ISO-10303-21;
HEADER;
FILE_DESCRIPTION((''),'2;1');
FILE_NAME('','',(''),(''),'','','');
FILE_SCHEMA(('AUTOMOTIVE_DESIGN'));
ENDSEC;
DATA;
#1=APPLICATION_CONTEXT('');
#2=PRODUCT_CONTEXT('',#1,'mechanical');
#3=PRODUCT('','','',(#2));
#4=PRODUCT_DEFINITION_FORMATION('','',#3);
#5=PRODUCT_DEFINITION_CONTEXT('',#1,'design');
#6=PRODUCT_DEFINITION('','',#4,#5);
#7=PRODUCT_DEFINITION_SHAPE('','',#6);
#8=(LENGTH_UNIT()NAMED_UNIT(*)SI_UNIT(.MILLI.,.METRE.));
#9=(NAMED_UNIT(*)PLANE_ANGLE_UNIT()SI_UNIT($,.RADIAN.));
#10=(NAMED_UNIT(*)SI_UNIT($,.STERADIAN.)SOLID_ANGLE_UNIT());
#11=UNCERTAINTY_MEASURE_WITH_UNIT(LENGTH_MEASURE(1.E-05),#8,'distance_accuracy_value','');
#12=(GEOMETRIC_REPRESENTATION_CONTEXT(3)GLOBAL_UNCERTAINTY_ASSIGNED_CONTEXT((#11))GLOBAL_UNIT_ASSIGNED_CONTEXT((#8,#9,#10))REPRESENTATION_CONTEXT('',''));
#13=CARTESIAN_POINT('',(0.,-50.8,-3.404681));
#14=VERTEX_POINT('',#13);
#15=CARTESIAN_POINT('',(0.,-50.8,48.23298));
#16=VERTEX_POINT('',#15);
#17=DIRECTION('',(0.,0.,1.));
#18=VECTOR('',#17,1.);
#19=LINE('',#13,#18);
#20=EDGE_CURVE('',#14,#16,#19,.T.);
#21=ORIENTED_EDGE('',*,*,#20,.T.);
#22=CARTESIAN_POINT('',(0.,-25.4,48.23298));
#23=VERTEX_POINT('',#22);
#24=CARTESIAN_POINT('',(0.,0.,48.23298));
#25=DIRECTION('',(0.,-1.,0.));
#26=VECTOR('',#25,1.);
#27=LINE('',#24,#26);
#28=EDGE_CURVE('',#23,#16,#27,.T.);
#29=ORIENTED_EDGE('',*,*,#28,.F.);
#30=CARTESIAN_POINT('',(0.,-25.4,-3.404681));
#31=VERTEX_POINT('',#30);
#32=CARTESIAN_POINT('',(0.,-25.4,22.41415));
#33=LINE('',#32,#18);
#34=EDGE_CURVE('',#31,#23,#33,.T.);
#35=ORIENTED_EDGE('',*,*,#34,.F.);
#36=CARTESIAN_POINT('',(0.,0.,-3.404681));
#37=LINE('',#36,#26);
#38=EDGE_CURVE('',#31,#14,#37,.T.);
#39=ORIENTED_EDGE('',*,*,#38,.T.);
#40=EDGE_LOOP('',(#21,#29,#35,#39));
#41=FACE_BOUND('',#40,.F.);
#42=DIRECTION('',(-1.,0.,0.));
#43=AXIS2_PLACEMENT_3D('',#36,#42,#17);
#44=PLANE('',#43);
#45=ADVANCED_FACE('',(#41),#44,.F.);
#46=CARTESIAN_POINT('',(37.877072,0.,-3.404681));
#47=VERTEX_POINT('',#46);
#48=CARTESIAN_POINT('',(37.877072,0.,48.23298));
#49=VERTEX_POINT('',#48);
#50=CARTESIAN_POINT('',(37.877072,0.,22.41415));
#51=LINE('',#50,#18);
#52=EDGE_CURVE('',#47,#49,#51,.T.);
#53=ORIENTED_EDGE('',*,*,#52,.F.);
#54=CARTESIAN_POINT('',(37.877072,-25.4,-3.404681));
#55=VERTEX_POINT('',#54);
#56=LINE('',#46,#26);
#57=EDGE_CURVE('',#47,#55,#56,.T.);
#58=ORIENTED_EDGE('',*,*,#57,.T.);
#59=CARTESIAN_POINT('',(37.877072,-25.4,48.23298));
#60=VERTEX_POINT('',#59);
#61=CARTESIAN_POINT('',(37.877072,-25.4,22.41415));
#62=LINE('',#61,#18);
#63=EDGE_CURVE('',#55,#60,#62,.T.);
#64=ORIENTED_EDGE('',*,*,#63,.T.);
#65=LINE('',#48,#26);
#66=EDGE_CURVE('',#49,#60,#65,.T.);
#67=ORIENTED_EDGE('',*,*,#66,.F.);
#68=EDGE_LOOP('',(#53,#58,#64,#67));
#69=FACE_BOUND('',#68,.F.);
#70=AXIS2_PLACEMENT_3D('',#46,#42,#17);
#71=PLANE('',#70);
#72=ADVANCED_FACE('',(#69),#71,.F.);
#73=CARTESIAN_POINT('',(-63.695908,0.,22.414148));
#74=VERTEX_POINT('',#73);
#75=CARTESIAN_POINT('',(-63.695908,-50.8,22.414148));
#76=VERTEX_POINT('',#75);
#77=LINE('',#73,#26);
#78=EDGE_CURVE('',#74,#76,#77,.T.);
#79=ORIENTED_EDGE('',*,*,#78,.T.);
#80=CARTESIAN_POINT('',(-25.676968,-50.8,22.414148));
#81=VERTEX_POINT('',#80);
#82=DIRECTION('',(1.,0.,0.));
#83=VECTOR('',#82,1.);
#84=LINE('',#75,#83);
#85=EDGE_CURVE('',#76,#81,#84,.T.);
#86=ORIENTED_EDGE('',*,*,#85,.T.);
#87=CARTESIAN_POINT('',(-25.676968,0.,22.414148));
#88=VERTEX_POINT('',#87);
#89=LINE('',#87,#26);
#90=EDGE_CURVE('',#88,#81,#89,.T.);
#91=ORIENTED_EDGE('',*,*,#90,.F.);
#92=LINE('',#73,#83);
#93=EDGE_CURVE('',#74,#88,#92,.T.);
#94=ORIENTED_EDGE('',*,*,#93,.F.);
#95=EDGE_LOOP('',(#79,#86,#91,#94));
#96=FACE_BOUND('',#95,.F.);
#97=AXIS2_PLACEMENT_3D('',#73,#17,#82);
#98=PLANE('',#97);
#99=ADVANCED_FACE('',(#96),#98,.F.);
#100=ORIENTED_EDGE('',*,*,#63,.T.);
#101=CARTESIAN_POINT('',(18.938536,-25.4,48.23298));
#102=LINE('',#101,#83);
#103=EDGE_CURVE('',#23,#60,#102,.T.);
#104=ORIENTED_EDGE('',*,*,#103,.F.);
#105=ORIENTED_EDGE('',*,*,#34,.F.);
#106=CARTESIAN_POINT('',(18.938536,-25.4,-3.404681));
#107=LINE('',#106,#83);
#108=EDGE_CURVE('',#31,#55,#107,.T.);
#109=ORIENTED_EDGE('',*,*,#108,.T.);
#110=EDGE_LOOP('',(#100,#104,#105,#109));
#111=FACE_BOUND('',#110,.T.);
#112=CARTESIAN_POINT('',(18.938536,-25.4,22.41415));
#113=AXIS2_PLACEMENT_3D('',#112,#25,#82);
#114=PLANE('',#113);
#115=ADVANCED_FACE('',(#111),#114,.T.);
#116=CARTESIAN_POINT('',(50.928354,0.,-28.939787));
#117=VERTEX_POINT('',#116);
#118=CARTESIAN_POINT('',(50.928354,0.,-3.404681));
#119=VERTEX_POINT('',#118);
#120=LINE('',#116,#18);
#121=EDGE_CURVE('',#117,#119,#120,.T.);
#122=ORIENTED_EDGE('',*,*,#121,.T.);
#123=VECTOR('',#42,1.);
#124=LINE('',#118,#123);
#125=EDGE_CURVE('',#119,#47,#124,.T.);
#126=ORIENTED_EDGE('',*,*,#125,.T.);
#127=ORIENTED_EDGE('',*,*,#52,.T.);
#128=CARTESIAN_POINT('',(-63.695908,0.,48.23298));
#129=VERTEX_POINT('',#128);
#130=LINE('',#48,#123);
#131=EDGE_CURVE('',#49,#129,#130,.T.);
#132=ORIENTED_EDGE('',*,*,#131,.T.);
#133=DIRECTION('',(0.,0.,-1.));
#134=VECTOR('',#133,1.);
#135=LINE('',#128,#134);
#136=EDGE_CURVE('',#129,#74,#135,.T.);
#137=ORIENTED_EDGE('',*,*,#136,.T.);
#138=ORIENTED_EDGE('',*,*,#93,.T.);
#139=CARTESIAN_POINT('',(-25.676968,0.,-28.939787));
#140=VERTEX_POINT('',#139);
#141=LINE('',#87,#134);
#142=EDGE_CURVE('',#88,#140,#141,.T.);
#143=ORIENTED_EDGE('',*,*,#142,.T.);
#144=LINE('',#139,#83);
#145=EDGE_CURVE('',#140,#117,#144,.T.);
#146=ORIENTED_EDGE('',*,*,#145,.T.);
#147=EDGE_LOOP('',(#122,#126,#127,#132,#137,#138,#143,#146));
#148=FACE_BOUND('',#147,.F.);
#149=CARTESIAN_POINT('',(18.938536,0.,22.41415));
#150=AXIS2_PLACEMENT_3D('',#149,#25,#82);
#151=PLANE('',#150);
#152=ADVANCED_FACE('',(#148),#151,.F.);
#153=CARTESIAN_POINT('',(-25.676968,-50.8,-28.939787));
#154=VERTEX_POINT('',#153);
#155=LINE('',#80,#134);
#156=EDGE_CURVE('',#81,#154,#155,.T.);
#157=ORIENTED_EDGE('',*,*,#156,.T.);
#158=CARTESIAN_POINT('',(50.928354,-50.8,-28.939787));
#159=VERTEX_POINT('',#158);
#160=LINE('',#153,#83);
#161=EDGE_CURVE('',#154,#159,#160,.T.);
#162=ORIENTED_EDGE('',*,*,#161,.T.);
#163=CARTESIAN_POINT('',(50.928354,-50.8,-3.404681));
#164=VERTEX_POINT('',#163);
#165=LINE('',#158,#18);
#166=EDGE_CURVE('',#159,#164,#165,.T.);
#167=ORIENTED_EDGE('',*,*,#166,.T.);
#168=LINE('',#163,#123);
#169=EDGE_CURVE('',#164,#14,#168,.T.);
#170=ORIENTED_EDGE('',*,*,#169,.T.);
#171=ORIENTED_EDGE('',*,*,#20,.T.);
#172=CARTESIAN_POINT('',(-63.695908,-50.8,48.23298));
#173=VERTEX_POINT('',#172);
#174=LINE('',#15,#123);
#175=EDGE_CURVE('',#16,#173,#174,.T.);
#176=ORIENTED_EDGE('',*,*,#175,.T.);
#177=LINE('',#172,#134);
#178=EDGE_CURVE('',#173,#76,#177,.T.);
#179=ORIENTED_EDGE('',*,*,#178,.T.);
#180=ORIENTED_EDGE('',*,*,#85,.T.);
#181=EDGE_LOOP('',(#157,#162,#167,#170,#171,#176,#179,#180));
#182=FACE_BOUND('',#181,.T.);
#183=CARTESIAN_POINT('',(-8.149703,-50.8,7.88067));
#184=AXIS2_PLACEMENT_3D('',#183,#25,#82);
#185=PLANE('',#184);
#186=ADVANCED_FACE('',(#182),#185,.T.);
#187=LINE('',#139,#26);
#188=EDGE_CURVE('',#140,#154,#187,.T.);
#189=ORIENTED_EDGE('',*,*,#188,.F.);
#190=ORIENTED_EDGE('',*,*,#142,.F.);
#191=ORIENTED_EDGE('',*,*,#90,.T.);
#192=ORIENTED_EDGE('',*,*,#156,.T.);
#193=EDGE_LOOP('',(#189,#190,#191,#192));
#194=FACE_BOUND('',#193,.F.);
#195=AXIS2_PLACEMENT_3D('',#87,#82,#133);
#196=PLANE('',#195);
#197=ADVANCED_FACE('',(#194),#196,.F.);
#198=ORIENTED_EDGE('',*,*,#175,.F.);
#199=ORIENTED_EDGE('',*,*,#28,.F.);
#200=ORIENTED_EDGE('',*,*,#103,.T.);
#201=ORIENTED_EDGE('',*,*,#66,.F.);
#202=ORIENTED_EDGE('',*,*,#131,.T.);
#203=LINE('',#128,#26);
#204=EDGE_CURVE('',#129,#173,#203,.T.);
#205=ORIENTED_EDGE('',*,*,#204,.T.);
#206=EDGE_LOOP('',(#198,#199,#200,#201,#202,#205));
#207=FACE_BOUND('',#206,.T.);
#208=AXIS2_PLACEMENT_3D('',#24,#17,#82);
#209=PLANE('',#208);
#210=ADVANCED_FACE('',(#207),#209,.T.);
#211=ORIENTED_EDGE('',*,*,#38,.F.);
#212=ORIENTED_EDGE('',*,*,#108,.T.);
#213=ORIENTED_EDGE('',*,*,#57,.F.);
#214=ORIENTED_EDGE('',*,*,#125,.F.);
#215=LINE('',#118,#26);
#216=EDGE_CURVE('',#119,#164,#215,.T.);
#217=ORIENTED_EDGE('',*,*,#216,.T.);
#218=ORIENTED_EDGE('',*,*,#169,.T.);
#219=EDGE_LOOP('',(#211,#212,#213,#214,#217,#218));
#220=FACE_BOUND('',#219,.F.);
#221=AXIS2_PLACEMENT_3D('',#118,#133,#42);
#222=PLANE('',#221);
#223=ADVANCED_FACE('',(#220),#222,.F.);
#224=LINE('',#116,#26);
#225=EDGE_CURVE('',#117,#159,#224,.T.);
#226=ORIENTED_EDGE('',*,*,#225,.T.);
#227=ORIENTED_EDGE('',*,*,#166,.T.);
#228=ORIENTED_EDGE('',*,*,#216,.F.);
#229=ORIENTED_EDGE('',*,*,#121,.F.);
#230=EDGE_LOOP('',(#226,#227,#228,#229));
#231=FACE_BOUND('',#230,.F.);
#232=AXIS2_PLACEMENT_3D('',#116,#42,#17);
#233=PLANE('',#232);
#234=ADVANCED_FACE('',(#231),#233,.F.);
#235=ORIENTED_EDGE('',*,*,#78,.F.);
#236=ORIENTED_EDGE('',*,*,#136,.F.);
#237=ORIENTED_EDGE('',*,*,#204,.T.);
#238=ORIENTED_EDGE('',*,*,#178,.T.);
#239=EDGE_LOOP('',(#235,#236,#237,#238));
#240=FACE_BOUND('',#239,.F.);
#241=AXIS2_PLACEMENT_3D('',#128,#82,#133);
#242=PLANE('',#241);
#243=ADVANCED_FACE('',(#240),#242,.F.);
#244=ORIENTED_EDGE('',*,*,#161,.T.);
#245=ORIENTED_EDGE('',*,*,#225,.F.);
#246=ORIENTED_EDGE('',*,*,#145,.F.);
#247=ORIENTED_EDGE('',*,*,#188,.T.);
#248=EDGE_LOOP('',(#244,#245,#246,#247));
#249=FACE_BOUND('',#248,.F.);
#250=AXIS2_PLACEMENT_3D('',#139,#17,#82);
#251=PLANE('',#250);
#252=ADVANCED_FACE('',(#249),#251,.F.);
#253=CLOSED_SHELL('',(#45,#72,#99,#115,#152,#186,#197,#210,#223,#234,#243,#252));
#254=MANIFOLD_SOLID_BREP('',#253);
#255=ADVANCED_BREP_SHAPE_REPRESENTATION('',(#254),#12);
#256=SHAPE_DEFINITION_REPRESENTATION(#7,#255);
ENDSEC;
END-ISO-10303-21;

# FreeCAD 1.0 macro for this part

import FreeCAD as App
import Part
import Sketcher
from FreeCAD import Vector
Q = App.Units.Quantity

doc = App.newDocument("Part")
body = doc.addObject("PartDesign::Body", "Body")

# Sketch on XZ plane
sketch1 = body.newObject("Sketcher::SketchObject", "Sketch")
sketch1.AttachmentSupport = (doc.getObject("XZ_Plane"), [""])
sketch1.MapMode = "FlatFace"
sketch1.addGeometry([
    Part.LineSegment(Vector(0, 48.23298, 0), Vector(-63.695908, 48.23298, 0)),  # 0
    Part.LineSegment(Vector(-63.695908, 48.23298, 0), Vector(-63.695908, 22.414148, 0)),  # 1
    Part.LineSegment(Vector(-63.695908, 22.414148, 0), Vector(-25.676968, 22.414148, 0)),  # 2
    Part.LineSegment(Vector(-25.676968, 22.414148, 0), Vector(-25.676968, -28.939787, 0)),  # 3
    Part.LineSegment(Vector(-25.676968, -28.939787, 0), Vector(50.928354, -28.939787, 0)),  # 4
    Part.LineSegment(Vector(50.928354, -28.939787, 0), Vector(50.928354, -3.404681, 0)),  # 5
    Part.LineSegment(Vector(50.928354, -3.404681, 0), Vector(0, -3.404681, 0)),  # 6
    Part.LineSegment(Vector(0, -3.404681, 0), Vector(0, 48.23298, 0)),  # 7
], False)
sketch1.addConstraint([
    Sketcher.Constraint("Coincident", 0, 2, 1, 1),
    Sketcher.Constraint("Coincident", 1, 2, 2, 1),
    Sketcher.Constraint("Coincident", 2, 2, 3, 1),
    Sketcher.Constraint("Coincident", 3, 2, 4, 1),
    Sketcher.Constraint("Coincident", 4, 2, 5, 1),
    Sketcher.Constraint("Coincident", 5, 2, 6, 1),
    Sketcher.Constraint("Coincident", 6, 2, 7, 1),
    Sketcher.Constraint("Coincident", 7, 2, 0, 1),
    Sketcher.Constraint("Horizontal", 0),
    Sketcher.Constraint("Vertical", 1),
    Sketcher.Constraint("Horizontal", 2),
    Sketcher.Constraint("Vertical", 3),
    Sketcher.Constraint("Horizontal", 4),
    Sketcher.Constraint("Vertical", 5),
    Sketcher.Constraint("Horizontal", 6),
    Sketcher.Constraint("Vertical", 7),
    Sketcher.Constraint("PointOnObject", 6, 2, -2),
    Sketcher.Constraint("DistanceX", 2, 1, 2, 2, Q("38.01894 mm")),
    Sketcher.Constraint("DistanceX", 4, 1, 4, 2, Q("76.605322 mm")),
    Sketcher.Constraint("DistanceY", 7, 1, 7, 2, Q("51.637661 mm")),
    Sketcher.Constraint("DistanceX", 0, 2, 0, 1, Q("63.695908 mm")),
    Sketcher.Constraint("DistanceY", 1, 2, 1, 1, Q("25.818832 mm")),
    Sketcher.Constraint("DistanceY", 3, 2, 3, 1, Q("51.353935 mm")),
    Sketcher.Constraint("DistanceY", -1, 1, 0, 2, Q("48.23298 mm")),
])
pad1 = body.newObject("PartDesign::Pad", "Pad")
pad1.Profile = sketch1
pad1.Length = Q("2 in")

# Sketch on XZ plane
sketch2 = body.newObject("Sketcher::SketchObject", "Sketch001")
sketch2.AttachmentSupport = (doc.getObject("XZ_Plane"), [""])
sketch2.MapMode = "FlatFace"
sketch2.addGeometry([
    Part.LineSegment(Vector(0, 48.23298, 0), Vector(0, -3.404681, 0)),
    Part.LineSegment(Vector(0, -3.404681, 0), Vector(37.877072, -3.404681, 0)),
    Part.LineSegment(Vector(37.877072, -3.404681, 0), Vector(37.877072, 48.23298, 0)),
    Part.LineSegment(Vector(37.877072, 48.23298, 0), Vector(0, 48.23298, 0)),
], False)
sketch2.addConstraint([
    Sketcher.Constraint("Coincident", 0, 2, 1, 1),
    Sketcher.Constraint("Coincident", 1, 2, 2, 1),
    Sketcher.Constraint("Coincident", 2, 2, 3, 1),
    Sketcher.Constraint("Coincident", 3, 2, 0, 1),
    Sketcher.Constraint("Vertical", 0),
    Sketcher.Constraint("Horizontal", 1),
    Sketcher.Constraint("Vertical", 2),
    Sketcher.Constraint("Horizontal", 3),
    Sketcher.Constraint("PointOnObject", 0, 2, -2),
    Sketcher.Constraint("DistanceX", 1, 1, 1, 2, Q("37.877072 mm")),
    Sketcher.Constraint("DistanceY", 0, 2, 0, 1, Q("51.637661 mm")),
    Sketcher.Constraint("DistanceY", 0, 2, -1, 1, Q("3.404681 mm")),
])
pad2 = body.newObject("PartDesign::Pad", "Pad001")
pad2.Profile = sketch2
pad2.Length = Q("1 in")

doc.recompute()
